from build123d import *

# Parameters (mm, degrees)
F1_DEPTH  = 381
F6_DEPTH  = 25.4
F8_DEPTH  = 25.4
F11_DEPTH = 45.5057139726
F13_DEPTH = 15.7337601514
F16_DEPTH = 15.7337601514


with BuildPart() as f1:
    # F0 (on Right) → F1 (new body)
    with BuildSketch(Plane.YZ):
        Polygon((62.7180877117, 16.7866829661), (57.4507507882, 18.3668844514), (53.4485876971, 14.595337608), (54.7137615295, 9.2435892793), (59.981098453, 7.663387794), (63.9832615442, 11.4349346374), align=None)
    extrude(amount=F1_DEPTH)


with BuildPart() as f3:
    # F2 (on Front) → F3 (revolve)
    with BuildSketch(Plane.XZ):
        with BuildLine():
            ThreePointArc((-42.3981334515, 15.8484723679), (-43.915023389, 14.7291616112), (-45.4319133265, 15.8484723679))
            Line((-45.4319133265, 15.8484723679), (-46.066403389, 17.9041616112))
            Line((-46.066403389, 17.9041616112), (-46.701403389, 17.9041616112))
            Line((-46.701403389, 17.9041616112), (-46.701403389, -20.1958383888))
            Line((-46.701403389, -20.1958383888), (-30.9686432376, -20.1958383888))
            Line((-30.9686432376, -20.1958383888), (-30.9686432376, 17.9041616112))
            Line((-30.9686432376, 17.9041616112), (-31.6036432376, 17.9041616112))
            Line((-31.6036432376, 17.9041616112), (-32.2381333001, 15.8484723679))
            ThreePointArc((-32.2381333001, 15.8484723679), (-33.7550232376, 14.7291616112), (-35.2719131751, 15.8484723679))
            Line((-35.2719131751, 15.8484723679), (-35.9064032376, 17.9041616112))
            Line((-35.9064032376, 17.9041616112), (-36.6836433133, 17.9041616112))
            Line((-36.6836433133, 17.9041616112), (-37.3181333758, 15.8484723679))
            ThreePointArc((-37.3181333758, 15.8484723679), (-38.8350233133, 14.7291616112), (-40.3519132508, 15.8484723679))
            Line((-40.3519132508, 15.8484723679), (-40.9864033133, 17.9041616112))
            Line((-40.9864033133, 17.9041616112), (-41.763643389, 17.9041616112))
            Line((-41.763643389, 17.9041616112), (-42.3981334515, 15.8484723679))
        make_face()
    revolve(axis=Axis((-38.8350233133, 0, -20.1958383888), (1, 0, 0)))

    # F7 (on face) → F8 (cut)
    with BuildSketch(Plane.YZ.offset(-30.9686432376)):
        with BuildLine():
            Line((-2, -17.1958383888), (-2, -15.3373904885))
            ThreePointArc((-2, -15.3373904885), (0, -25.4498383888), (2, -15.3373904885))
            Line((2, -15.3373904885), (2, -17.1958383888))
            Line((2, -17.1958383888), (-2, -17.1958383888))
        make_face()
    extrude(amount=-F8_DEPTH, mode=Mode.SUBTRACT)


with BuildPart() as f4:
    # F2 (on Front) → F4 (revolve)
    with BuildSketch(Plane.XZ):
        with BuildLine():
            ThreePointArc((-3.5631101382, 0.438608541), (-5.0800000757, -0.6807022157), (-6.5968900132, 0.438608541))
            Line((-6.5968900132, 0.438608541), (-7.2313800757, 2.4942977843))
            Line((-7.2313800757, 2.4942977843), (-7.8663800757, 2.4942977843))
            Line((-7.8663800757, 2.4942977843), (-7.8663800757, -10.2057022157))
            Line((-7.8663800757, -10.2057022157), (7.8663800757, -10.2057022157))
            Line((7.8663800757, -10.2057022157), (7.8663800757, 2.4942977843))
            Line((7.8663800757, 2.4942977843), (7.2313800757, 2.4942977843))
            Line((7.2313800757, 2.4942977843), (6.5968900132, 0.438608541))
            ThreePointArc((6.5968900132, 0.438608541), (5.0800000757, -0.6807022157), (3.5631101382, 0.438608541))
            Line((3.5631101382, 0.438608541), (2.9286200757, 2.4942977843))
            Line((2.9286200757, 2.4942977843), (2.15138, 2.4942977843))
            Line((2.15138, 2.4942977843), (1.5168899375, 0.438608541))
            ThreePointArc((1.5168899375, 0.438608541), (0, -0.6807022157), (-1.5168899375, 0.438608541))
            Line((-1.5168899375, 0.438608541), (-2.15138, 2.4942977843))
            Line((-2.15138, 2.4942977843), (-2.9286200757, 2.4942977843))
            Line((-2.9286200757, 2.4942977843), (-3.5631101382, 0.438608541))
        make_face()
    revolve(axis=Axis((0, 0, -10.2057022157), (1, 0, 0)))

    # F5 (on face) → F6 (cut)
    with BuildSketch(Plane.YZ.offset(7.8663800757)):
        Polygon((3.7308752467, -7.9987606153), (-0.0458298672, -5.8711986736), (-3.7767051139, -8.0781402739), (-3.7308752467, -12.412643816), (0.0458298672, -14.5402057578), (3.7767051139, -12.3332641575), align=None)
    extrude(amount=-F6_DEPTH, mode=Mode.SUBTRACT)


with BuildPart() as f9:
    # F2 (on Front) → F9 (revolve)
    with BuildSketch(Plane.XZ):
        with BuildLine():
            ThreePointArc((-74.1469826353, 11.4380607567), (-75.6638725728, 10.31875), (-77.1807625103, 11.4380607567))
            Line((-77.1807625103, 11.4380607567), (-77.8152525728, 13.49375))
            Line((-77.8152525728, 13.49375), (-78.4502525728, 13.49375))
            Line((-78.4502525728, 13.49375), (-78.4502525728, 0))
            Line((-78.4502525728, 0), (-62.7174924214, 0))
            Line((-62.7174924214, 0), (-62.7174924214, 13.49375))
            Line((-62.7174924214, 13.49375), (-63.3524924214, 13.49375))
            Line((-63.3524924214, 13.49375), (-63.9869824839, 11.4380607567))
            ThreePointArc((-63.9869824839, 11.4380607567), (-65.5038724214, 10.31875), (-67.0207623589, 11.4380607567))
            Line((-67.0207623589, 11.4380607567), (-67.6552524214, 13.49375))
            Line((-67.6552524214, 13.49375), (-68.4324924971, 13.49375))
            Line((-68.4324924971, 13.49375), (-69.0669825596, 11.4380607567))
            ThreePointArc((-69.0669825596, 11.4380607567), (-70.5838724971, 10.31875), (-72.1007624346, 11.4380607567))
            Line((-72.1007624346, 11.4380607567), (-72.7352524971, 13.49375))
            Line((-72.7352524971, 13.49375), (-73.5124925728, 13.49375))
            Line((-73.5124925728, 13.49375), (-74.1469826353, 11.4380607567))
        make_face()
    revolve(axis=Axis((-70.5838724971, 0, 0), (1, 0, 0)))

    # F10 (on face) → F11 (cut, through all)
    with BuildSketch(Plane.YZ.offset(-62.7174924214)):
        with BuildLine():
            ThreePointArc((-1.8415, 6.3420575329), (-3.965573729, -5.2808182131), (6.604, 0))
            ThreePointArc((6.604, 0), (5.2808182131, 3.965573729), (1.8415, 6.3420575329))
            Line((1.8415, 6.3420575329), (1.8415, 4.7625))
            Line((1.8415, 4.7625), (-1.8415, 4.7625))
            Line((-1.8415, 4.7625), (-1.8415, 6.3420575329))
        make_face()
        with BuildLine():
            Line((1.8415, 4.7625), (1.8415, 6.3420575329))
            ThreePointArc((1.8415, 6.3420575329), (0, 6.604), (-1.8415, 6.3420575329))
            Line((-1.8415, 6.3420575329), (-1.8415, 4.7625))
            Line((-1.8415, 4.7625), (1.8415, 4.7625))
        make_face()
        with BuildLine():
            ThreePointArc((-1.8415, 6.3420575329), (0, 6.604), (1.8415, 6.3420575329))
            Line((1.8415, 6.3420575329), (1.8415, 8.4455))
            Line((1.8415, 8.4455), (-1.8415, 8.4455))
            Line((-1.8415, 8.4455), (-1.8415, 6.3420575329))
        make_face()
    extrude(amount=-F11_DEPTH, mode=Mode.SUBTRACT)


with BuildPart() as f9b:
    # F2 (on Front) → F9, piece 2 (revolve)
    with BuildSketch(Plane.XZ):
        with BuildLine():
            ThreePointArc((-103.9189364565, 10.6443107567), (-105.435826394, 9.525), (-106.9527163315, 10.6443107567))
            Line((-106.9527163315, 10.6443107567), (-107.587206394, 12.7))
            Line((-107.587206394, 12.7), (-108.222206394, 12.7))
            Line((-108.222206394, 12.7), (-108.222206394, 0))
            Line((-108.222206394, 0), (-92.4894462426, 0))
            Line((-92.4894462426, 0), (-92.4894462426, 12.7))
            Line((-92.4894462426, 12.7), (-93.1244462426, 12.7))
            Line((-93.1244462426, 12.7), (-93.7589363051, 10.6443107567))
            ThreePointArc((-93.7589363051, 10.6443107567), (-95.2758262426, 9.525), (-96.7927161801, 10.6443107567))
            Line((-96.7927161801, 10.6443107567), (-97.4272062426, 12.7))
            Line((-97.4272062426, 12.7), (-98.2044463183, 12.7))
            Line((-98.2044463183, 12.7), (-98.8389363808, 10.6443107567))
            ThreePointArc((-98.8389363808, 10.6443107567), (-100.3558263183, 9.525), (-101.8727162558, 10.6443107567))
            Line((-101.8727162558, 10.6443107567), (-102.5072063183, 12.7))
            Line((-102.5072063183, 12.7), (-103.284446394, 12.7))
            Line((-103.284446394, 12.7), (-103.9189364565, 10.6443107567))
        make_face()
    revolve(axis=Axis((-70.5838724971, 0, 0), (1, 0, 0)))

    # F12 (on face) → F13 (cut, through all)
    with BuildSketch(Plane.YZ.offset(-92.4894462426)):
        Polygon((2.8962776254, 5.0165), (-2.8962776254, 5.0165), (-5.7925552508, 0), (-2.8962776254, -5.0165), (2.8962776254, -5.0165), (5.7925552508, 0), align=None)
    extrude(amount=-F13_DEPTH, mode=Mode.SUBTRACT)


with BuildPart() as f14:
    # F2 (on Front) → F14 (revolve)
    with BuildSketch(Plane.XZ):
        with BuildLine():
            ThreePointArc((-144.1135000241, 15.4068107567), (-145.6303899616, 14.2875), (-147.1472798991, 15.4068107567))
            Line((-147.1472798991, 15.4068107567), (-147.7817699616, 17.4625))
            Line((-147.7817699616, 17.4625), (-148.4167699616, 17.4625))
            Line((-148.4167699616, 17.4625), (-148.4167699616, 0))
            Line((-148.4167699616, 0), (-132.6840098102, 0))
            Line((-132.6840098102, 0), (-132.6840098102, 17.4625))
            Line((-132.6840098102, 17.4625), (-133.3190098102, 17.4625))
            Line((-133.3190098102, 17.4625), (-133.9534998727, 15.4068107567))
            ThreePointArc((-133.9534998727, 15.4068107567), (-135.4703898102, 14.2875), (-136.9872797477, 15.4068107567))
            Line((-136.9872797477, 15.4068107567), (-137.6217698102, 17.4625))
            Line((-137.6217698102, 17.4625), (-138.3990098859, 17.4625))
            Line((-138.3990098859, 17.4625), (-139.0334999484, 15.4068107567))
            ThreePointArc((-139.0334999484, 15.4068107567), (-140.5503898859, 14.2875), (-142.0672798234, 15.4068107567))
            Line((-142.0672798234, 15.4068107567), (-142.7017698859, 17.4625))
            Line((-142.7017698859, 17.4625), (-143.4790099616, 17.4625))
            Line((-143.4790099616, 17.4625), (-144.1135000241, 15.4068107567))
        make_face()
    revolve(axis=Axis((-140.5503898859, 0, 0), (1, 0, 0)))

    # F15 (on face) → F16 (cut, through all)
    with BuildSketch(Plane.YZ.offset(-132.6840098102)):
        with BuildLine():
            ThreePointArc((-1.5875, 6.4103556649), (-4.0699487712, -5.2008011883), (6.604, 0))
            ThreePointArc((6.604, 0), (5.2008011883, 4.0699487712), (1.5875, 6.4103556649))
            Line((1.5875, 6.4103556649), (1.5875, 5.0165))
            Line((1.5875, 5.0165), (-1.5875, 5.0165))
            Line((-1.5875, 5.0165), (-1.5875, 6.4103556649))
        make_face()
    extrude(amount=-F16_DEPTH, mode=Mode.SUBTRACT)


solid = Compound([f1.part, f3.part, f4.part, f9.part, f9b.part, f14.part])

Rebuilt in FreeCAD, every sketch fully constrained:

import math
import FreeCAD as App
import Part
import Sketcher
from FreeCAD import Vector
Q = App.Units.Quantity

doc = App.newDocument("Part")
params = doc.addObject("Spreadsheet::Sheet", "Params")
for row, (alias, value) in enumerate([
    ("pad1_length", "15 in"),
    ("sketch2_height", "1.5 in"),
    ("sketch2_radius", "0.0625 in"),
    ("sketch2_width", "0.025 in"),
    ("revolution_angle", "360 deg"),
    ("pocket1_length", "1 in"),
    ("sketch4_height", "0.5 in"),
    ("sketch4_radius", "0.0625 in"),
    ("sketch4_width", "0.025 in"),
    ("revolution2_angle", "360 deg"),
    ("pocket2_length", "1 in"),
    ("sketch6_radius", "0.0625 in"),
    ("sketch6_width", "0.025 in"),
    ("sketch6_height", "0.53125 in"),
    ("revolution3_angle", "360 deg"),
    ("sketch7_radius", "0.26 in"),
    ("sketch7_width", "0.145 in"),
    ("sketch8_height", "0.5 in"),
    ("sketch8_radius", "0.0625 in"),
    ("sketch8_width", "0.025 in"),
    ("revolution4_angle", "360 deg"),
    ("sketch10_radius", "0.0625 in"),
    ("sketch10_width", "0.025 in"),
    ("sketch10_height", "0.6875 in"),
    ("revolution5_angle", "360 deg"),
    ("sketch11_radius", "0.26 in"),
    ("sketch11_width", "0.125 in"),
], start=1):
    params.set(f"A{row}", alias)
    params.set(f"B{row}", "=" + value)
    params.setAlias(f"B{row}", alias)

body = doc.addObject("PartDesign::Body", "Body")

sketch1 = doc.addObject("Sketcher::SketchObject", "Sketch")
body.addObject(sketch1)
sketch1.AttachmentSupport = (doc.YZ_Plane, [""])
sketch1.MapMode = "FlatFace"
sketch1.addGeometry(Part.LineSegment(Vector(62.718088, 16.786683, 0), Vector(57.450751, 18.366884, 0)), False)
sketch1.addGeometry(Part.LineSegment(Vector(57.450751, 18.366884, 0), Vector(53.448588, 14.595338, 0)), False)
sketch1.addGeometry(Part.LineSegment(Vector(53.448588, 14.595338, 0), Vector(54.713762, 9.243589, 0)), False)
sketch1.addGeometry(Part.LineSegment(Vector(54.713762, 9.243589, 0), Vector(59.981098, 7.663388, 0)), False)
sketch1.addGeometry(Part.LineSegment(Vector(59.981098, 7.663388, 0), Vector(63.983262, 11.434935, 0)), False)
sketch1.addGeometry(Part.LineSegment(Vector(63.983262, 11.434935, 0), Vector(62.718088, 16.786683, 0)), False)
sketch1.addConstraint(Sketcher.Constraint("Coincident", 0, 2, 1, 1))
sketch1.addConstraint(Sketcher.Constraint("Coincident", 1, 2, 2, 1))
sketch1.addConstraint(Sketcher.Constraint("Coincident", 2, 2, 3, 1))
sketch1.addConstraint(Sketcher.Constraint("Coincident", 3, 2, 4, 1))
sketch1.addConstraint(Sketcher.Constraint("Coincident", 4, 2, 5, 1))
sketch1.addConstraint(Sketcher.Constraint("Coincident", 5, 2, 0, 1))
sketch1.addConstraint(Sketcher.Constraint("Parallel", 0, 3))
sketch1.addConstraint(Sketcher.Constraint("Parallel", 1, 4))
sketch1.addConstraint(Sketcher.Constraint("Parallel", 2, 5))
sketch1.addConstraint(Sketcher.Constraint("Equal", 0, 1))
sketch1.addConstraint(Sketcher.Constraint("Equal", 1, 2))
sketch1.addConstraint(Sketcher.Constraint("Equal", 2, 3))
sketch1.addConstraint(Sketcher.Constraint("DistanceX", -1, 1, 3, 2, Q("59.981098 mm")))
sketch1.addConstraint(Sketcher.Constraint("DistanceY", 3, 2, 2, 2, Q("1.580201 mm")))
sketch1.addConstraint(Sketcher.Constraint("DistanceX", 2, 2, 4, 2, Q("9.2695 mm")))
sketch1.addConstraint(Sketcher.Constraint("Distance", 0, Q("5.499261 mm")))
sketch1.addConstraint(Sketcher.Constraint("DistanceX", -1, 1, 0, 2, Q("57.450751 mm")))
sketch1.addConstraint(Sketcher.Constraint("DistanceY", -1, 1, 2, 2, Q("9.243589 mm")))
pad1 = doc.addObject("PartDesign::Pad", "Pad")
body.addObject(pad1)
pad1.Profile = sketch1
pad1.setExpression("Length", "Params.pad1_length")
body2 = doc.addObject("PartDesign::Body", "Body001")

sketch2 = doc.addObject("Sketcher::SketchObject", "Sketch001")
body2.addObject(sketch2)
sketch2.AttachmentSupport = (doc.getObject("XZ_Plane001"), [""])
sketch2.MapMode = "FlatFace"
sketch2.addGeometry(Part.ArcOfCircle(Part.Circle(Vector(-43.915023, 16.316662, 0), Vector(0, 0, 1), 1.5875), math.radians(-162.847118), math.radians(-17.152882)), False)
sketch2.addGeometry(Part.LineSegment(Vector(-45.431913, 15.848472, 0), Vector(-46.066403, 17.904162, 0)), False)
sketch2.addGeometry(Part.LineSegment(Vector(-46.066403, 17.904162, 0), Vector(-46.701403, 17.904162, 0)), False)
sketch2.addGeometry(Part.LineSegment(Vector(-46.701403, 17.904162, 0), Vector(-46.701403, -20.195838, 0)), False)
sketch2.addGeometry(Part.LineSegment(Vector(-46.701403, -20.195838, 0), Vector(-30.968643, -20.195838, 0)), False)
sketch2.addGeometry(Part.LineSegment(Vector(-30.968643, -20.195838, 0), Vector(-30.968643, 17.904162, 0)), False)
sketch2.addGeometry(Part.LineSegment(Vector(-30.968643, 17.904162, 0), Vector(-31.603643, 17.904162, 0)), False)
sketch2.addGeometry(Part.LineSegment(Vector(-31.603643, 17.904162, 0), Vector(-32.238133, 15.848472, 0)), False)
sketch2.addGeometry(Part.ArcOfCircle(Part.Circle(Vector(-33.755023, 16.316662, 0), Vector(0, 0, 1), 1.5875), math.radians(-162.847118), math.radians(-17.152882)), False)
sketch2.addGeometry(Part.LineSegment(Vector(-35.271913, 15.848472, 0), Vector(-35.906403, 17.904162, 0)), False)
sketch2.addGeometry(Part.LineSegment(Vector(-35.906403, 17.904162, 0), Vector(-36.683643, 17.904162, 0)), False)
sketch2.addGeometry(Part.LineSegment(Vector(-36.683643, 17.904162, 0), Vector(-37.318133, 15.848472, 0)), False)
sketch2.addGeometry(Part.ArcOfCircle(Part.Circle(Vector(-38.835023, 16.316662, 0), Vector(0, 0, 1), 1.5875), math.radians(-162.847118), math.radians(-17.152882)), False)
sketch2.addGeometry(Part.LineSegment(Vector(-40.351913, 15.848472, 0), Vector(-40.986403, 17.904162, 0)), False)
sketch2.addGeometry(Part.LineSegment(Vector(-40.986403, 17.904162, 0), Vector(-41.763643, 17.904162, 0)), False)
sketch2.addGeometry(Part.LineSegment(Vector(-41.763643, 17.904162, 0), Vector(-42.398133, 15.848472, 0)), False)
sketch2.addGeometry(Part.LineSegment(Vector(-46.701403, -20.195838, 0), Vector(-30.968643, -20.195838, 0)), True)
sketch2.addConstraint(Sketcher.Constraint("Tangent", 0, 1, 1, 1))
sketch2.addConstraint(Sketcher.Constraint("Coincident", 1, 2, 2, 1))
sketch2.addConstraint(Sketcher.Constraint("Coincident", 2, 2, 3, 1))
sketch2.addConstraint(Sketcher.Constraint("Coincident", 3, 2, 4, 1))
sketch2.addConstraint(Sketcher.Constraint("Coincident", 4, 2, 5, 1))
sketch2.addConstraint(Sketcher.Constraint("Coincident", 5, 2, 6, 1))
sketch2.addConstraint(Sketcher.Constraint("Coincident", 6, 2, 7, 1))
sketch2.addConstraint(Sketcher.Constraint("Tangent", 7, 2, 8, 2))
sketch2.addConstraint(Sketcher.Constraint("Tangent", 8, 1, 9, 1))
sketch2.addConstraint(Sketcher.Constraint("Coincident", 9, 2, 10, 1))
sketch2.addConstraint(Sketcher.Constraint("Coincident", 10, 2, 11, 1))
sketch2.addConstraint(Sketcher.Constraint("Tangent", 11, 2, 12, 2))
sketch2.addConstraint(Sketcher.Constraint("Tangent", 12, 1, 13, 1))
sketch2.addConstraint(Sketcher.Constraint("Coincident", 13, 2, 14, 1))
sketch2.addConstraint(Sketcher.Constraint("Coincident", 14, 2, 15, 1))
sketch2.addConstraint(Sketcher.Constraint("Tangent", 15, 2, 0, 2))
sketch2.addConstraint(Sketcher.Constraint("Horizontal", 2))
sketch2.addConstraint(Sketcher.Constraint("Vertical", 3))
sketch2.addConstraint(Sketcher.Constraint("Horizontal", 4))
sketch2.addConstraint(Sketcher.Constraint("Vertical", 5))
sketch2.addConstraint(Sketcher.Constraint("Horizontal", 6))
sketch2.addConstraint(Sketcher.Constraint("Horizontal", 10))
sketch2.addConstraint(Sketcher.Constraint("Horizontal", 14))
sketch2.addConstraint(Sketcher.Constraint("Horizontal", 16))
sketch2.addConstraint(Sketcher.Constraint("Coincident", 16, 1, 3, 2))
sketch2.addConstraint(Sketcher.Constraint("Equal", 0, 8))
sketch2.addConstraint(Sketcher.Constraint("Equal", 8, 12))
sketch2.addConstraint(Sketcher.Constraint("Parallel", 1, 9))
sketch2.addConstraint(Sketcher.Constraint("Parallel", 7, 11))
sketch2.addConstraint(Sketcher.Constraint("Parallel", 9, 13))
sketch2.addConstraint(Sketcher.Constraint("Parallel", 11, 15))
sketch2.addConstraint(Sketcher.Constraint("Horizontal", 0, 3, 8, 3))
sketch2.addConstraint(Sketcher.Constraint("Horizontal", 8, 3, 12, 3))
sketch2.addConstraint(Sketcher.Constraint("Horizontal", 2, 2, 5, 2))
sketch2.addConstraint(Sketcher.Constraint("Horizontal", 0, 1, 7, 2))
sketch2.addConstraint(Sketcher.Constraint("Horizontal", 6, 2, 9, 2))
sketch2.addConstraint(Sketcher.Constraint("Horizontal", 10, 2, 13, 2))
sketch2.addConstraint(Sketcher.Constraint("Vertical", 5, 2, 16, 2))
sketch2.addConstraint(Sketcher.Constraint("Equal", 2, 6))
sketch2.addConstraint(Sketcher.Constraint("Equal", 10, 14))
sketch2.addConstraint(Sketcher.Constraint("DistanceY", 3, 2, 3, 1, Q("1.5 in")))
sketch2.addConstraint(Sketcher.Constraint("Radius", 0, Q("0.0625 in")))
sketch2.addConstraint(Sketcher.Constraint("DistanceX", 0, 3, 8, 3, Q("0.4 in")))
sketch2.addConstraint(Sketcher.Constraint("DistanceX", 2, 2, 2, 1, Q("0.025 in")))
sketch2.addConstraint(Sketcher.Constraint("DistanceX", 4, 1, 4, 2, Q("0.6194 in")))
sketch2.addConstraint(Sketcher.Constraint("DistanceY", 0, 3, 1, 2, Q("0.0625 in")))
sketch2.addConstraint(Sketcher.Constraint("DistanceY", -1, 1, 0, 3, Q("16.316662 mm")))
sketch2.addConstraint(Sketcher.Constraint("DistanceX", 0, 3, -1, 1, Q("43.915023 mm")))
sketch2.setExpression("Constraints[40]", "Params.sketch2_height")
sketch2.setExpression("Constraints[41]", "Params.sketch2_radius")
sketch2.setExpression("Constraints[43]", "Params.sketch2_width")
revolution = doc.addObject("PartDesign::Revolution", "Revolution")
body2.addObject(revolution)
revolution.Profile = sketch2
revolution.ReferenceAxis = (sketch2, ["Axis0"])
revolution.setExpression("Angle", "Params.revolution_angle")

sketch3 = doc.addObject("Sketcher::SketchObject", "Sketch002")
body2.addObject(sketch3)
sketch3.AttachmentSupport = (doc.getObject("YZ_Plane001"), [""])
sketch3.MapMode = "FlatFace"
sketch3.AttachmentOffset = App.Placement(Vector(0, 0, -30.968643), App.Rotation())
sketch3.addGeometry(Part.LineSegment(Vector(-2, -17.195838, 0), Vector(-2, -15.33739, 0)), False)
sketch3.addGeometry(Part.ArcOfCircle(Part.Circle(Vector(0, -20.195838, 0), Vector(0, 0, 1), 5.254), math.radians(112.374716), math.radians(427.625284)), False)
sketch3.addGeometry(Part.LineSegment(Vector(2, -15.33739, 0), Vector(2, -17.195838, 0)), False)
sketch3.addGeometry(Part.LineSegment(Vector(2, -17.195838, 0), Vector(-2, -17.195838, 0)), False)
sketch3.addConstraint(Sketcher.Constraint("Coincident", 0, 2, 1, 1))
sketch3.addConstraint(Sketcher.Constraint("Coincident", 1, 2, 2, 1))
sketch3.addConstraint(Sketcher.Constraint("Coincident", 2, 2, 3, 1))
sketch3.addConstraint(Sketcher.Constraint("Coincident", 3, 2, 0, 1))
sketch3.addConstraint(Sketcher.Constraint("Vertical", 0))
sketch3.addConstraint(Sketcher.Constraint("Vertical", 2))
sketch3.addConstraint(Sketcher.Constraint("Horizontal", 3))
sketch3.addConstraint(Sketcher.Constraint("Symmetric", 0, 2, 1, 2, -2))
sketch3.addConstraint(Sketcher.Constraint("Radius", 1, Q("5.254 mm")))
sketch3.addConstraint(Sketcher.Constraint("DistanceX", 3, 2, 3, 1, Q("4 mm")))
sketch3.addConstraint(Sketcher.Constraint("DistanceY", 1, 3, 2, 2, Q("3 mm")))
sketch3.addConstraint(Sketcher.Constraint("DistanceY", 1, 3, -1, 1, Q("20.195838 mm")))
pocket1 = doc.addObject("PartDesign::Pocket", "Pocket")
body2.addObject(pocket1)
pocket1.Profile = sketch3
pocket1.setExpression("Length", "Params.pocket1_length")
body3 = doc.addObject("PartDesign::Body", "Body002")

sketch4 = doc.addObject("Sketcher::SketchObject", "Sketch003")
body3.addObject(sketch4)
sketch4.AttachmentSupport = (doc.getObject("XZ_Plane002"), [""])
sketch4.MapMode = "FlatFace"
sketch4.addGeometry(Part.ArcOfCircle(Part.Circle(Vector(-5.08, 0.906798, 0), Vector(0, 0, 1), 1.5875), math.radians(-162.847118), math.radians(-17.152882)), False)
sketch4.addGeometry(Part.LineSegment(Vector(-6.59689, 0.438609, 0), Vector(-7.23138, 2.494298, 0)), False)
sketch4.addGeometry(Part.LineSegment(Vector(-7.23138, 2.494298, 0), Vector(-7.86638, 2.494298, 0)), False)
sketch4.addGeometry(Part.LineSegment(Vector(-7.86638, 2.494298, 0), Vector(-7.86638, -10.205702, 0)), False)
sketch4.addGeometry(Part.LineSegment(Vector(-7.86638, -10.205702, 0), Vector(7.86638, -10.205702, 0)), False)
sketch4.addGeometry(Part.LineSegment(Vector(7.86638, -10.205702, 0), Vector(7.86638, 2.494298, 0)), False)
sketch4.addGeometry(Part.LineSegment(Vector(7.86638, 2.494298, 0), Vector(7.23138, 2.494298, 0)), False)
sketch4.addGeometry(Part.LineSegment(Vector(7.23138, 2.494298, 0), Vector(6.59689, 0.438609, 0)), False)
sketch4.addGeometry(Part.ArcOfCircle(Part.Circle(Vector(5.08, 0.906798, 0), Vector(0, 0, 1), 1.5875), math.radians(-162.847118), math.radians(-17.152882)), False)
sketch4.addGeometry(Part.LineSegment(Vector(3.56311, 0.438609, 0), Vector(2.92862, 2.494298, 0)), False)
sketch4.addGeometry(Part.LineSegment(Vector(2.92862, 2.494298, 0), Vector(2.15138, 2.494298, 0)), False)
sketch4.addGeometry(Part.LineSegment(Vector(2.15138, 2.494298, 0), Vector(1.51689, 0.438609, 0)), False)
sketch4.addGeometry(Part.ArcOfCircle(Part.Circle(Vector(0, 0.906798, 0), Vector(0, 0, 1), 1.5875), math.radians(-162.847118), math.radians(-17.152882)), False)
sketch4.addGeometry(Part.LineSegment(Vector(-1.51689, 0.438609, 0), Vector(-2.15138, 2.494298, 0)), False)
sketch4.addGeometry(Part.LineSegment(Vector(-2.15138, 2.494298, 0), Vector(-2.92862, 2.494298, 0)), False)
sketch4.addGeometry(Part.LineSegment(Vector(-2.92862, 2.494298, 0), Vector(-3.56311, 0.438609, 0)), False)
sketch4.addGeometry(Part.LineSegment(Vector(-7.86638, -10.205702, 0), Vector(7.86638, -10.205702, 0)), True)
sketch4.addConstraint(Sketcher.Constraint("Tangent", 0, 1, 1, 1))
sketch4.addConstraint(Sketcher.Constraint("Coincident", 1, 2, 2, 1))
sketch4.addConstraint(Sketcher.Constraint("Coincident", 2, 2, 3, 1))
sketch4.addConstraint(Sketcher.Constraint("Coincident", 3, 2, 4, 1))
sketch4.addConstraint(Sketcher.Constraint("Coincident", 4, 2, 5, 1))
sketch4.addConstraint(Sketcher.Constraint("Coincident", 5, 2, 6, 1))
sketch4.addConstraint(Sketcher.Constraint("Coincident", 6, 2, 7, 1))
sketch4.addConstraint(Sketcher.Constraint("Tangent", 7, 2, 8, 2))
sketch4.addConstraint(Sketcher.Constraint("Tangent", 8, 1, 9, 1))
sketch4.addConstraint(Sketcher.Constraint("Coincident", 9, 2, 10, 1))
sketch4.addConstraint(Sketcher.Constraint("Coincident", 10, 2, 11, 1))
sketch4.addConstraint(Sketcher.Constraint("Tangent", 11, 2, 12, 2))
sketch4.addConstraint(Sketcher.Constraint("Tangent", 12, 1, 13, 1))
sketch4.addConstraint(Sketcher.Constraint("Coincident", 13, 2, 14, 1))
sketch4.addConstraint(Sketcher.Constraint("Coincident", 14, 2, 15, 1))
sketch4.addConstraint(Sketcher.Constraint("Tangent", 15, 2, 0, 2))
sketch4.addConstraint(Sketcher.Constraint("Horizontal", 2))
sketch4.addConstraint(Sketcher.Constraint("Vertical", 3))
sketch4.addConstraint(Sketcher.Constraint("Horizontal", 4))
sketch4.addConstraint(Sketcher.Constraint("Vertical", 5))
sketch4.addConstraint(Sketcher.Constraint("Horizontal", 6))
sketch4.addConstraint(Sketcher.Constraint("Horizontal", 10))
sketch4.addConstraint(Sketcher.Constraint("Horizontal", 14))
sketch4.addConstraint(Sketcher.Constraint("Horizontal", 16))
sketch4.addConstraint(Sketcher.Constraint("Coincident", 16, 1, 3, 2))
sketch4.addConstraint(Sketcher.Constraint("Equal", 0, 8))
sketch4.addConstraint(Sketcher.Constraint("Equal", 8, 12))
sketch4.addConstraint(Sketcher.Constraint("Symmetric", 0, 3, 8, 3, -2))
sketch4.addConstraint(Sketcher.Constraint("Symmetric", 2, 2, 5, 2, -2))
sketch4.addConstraint(Sketcher.Constraint("Symmetric", 11, 2, 12, 1, -2))
sketch4.addConstraint(Sketcher.Constraint("Symmetric", 9, 2, 14, 2, -2))
sketch4.addConstraint(Sketcher.Constraint("Parallel", 1, 9))
sketch4.addConstraint(Sketcher.Constraint("Parallel", 7, 11))
sketch4.addConstraint(Sketcher.Constraint("Parallel", 9, 13))
sketch4.addConstraint(Sketcher.Constraint("Horizontal", 8, 3, 12, 3))
sketch4.addConstraint(Sketcher.Constraint("Horizontal", 6, 2, 9, 2))
sketch4.addConstraint(Sketcher.Constraint("Vertical", 5, 2, 16, 2))
sketch4.addConstraint(Sketcher.Constraint("DistanceY", 3, 2, 3, 1, Q("0.5 in")))
sketch4.addConstraint(Sketcher.Constraint("Radius", 0, Q("0.0625 in")))
sketch4.addConstraint(Sketcher.Constraint("DistanceX", 0, 3, -1, 1, Q("0.2 in")))
sketch4.addConstraint(Sketcher.Constraint("DistanceX", 2, 2, 2, 1, Q("0.025 in")))
sketch4.addConstraint(Sketcher.Constraint("DistanceX", 4, 1, 4, 2, Q("0.6194 in")))
sketch4.addConstraint(Sketcher.Constraint("DistanceY", 0, 3, 1, 2, Q("0.0625 in")))
sketch4.addConstraint(Sketcher.Constraint("DistanceY", -1, 1, 0, 1, Q("0.438609 mm")))
sketch4.setExpression("Constraints[37]", "Params.sketch4_height")
sketch4.setExpression("Constraints[38]", "Params.sketch4_radius")
sketch4.setExpression("Constraints[40]", "Params.sketch4_width")
revolution2 = doc.addObject("PartDesign::Revolution", "Revolution001")
body3.addObject(revolution2)
revolution2.Profile = sketch4
revolution2.ReferenceAxis = (sketch4, ["Axis0"])
revolution2.setExpression("Angle", "Params.revolution2_angle")

sketch5 = doc.addObject("Sketcher::SketchObject", "Sketch004")
body3.addObject(sketch5)
sketch5.AttachmentSupport = (doc.getObject("YZ_Plane002"), [""])
sketch5.MapMode = "FlatFace"
sketch5.AttachmentOffset = App.Placement(Vector(0, 0, 0.3097 * 25.4), App.Rotation())
sketch5.addGeometry(Part.LineSegment(Vector(3.730875, -7.998761, 0), Vector(-0.04583, -5.871199, 0)), False)
sketch5.addGeometry(Part.LineSegment(Vector(-0.04583, -5.871199, 0), Vector(-3.776705, -8.07814, 0)), False)
sketch5.addGeometry(Part.LineSegment(Vector(-3.776705, -8.07814, 0), Vector(-3.730875, -12.412644, 0)), False)
sketch5.addGeometry(Part.LineSegment(Vector(-3.730875, -12.412644, 0), Vector(0.04583, -14.540206, 0)), False)
sketch5.addGeometry(Part.LineSegment(Vector(0.04583, -14.540206, 0), Vector(3.776705, -12.333264, 0)), False)
sketch5.addGeometry(Part.LineSegment(Vector(3.776705, -12.333264, 0), Vector(3.730875, -7.998761, 0)), False)
sketch5.addConstraint(Sketcher.Constraint("Coincident", 0, 2, 1, 1))
sketch5.addConstraint(Sketcher.Constraint("Coincident", 1, 2, 2, 1))
sketch5.addConstraint(Sketcher.Constraint("Coincident", 2, 2, 3, 1))
sketch5.addConstraint(Sketcher.Constraint("Coincident", 3, 2, 4, 1))
sketch5.addConstraint(Sketcher.Constraint("Coincident", 4, 2, 5, 1))
sketch5.addConstraint(Sketcher.Constraint("Coincident", 5, 2, 0, 1))
sketch5.addConstraint(Sketcher.Constraint("DistanceY", 0, 2, -1, 1, Q("5.871199 mm")))
sketch5.addConstraint(Sketcher.Constraint("DistanceX", 0, 2, -1, 1, Q("0.04583 mm")))
sketch5.addConstraint(Sketcher.Constraint("DistanceY", 1, 2, -1, 1, Q("8.07814 mm")))
sketch5.addConstraint(Sketcher.Constraint("DistanceX", -1, 1, 3, 2, Q("0.04583 mm")))
sketch5.addConstraint(Sketcher.Constraint("DistanceY", 5, 2, -1, 1, Q("7.998761 mm")))
sketch5.addConstraint(Sketcher.Constraint("DistanceX", 1, 2, 2, 2, Q("0.04583 mm")))
sketch5.addConstraint(Sketcher.Constraint("DistanceY", 3, 2, 2, 2, Q("2.127562 mm")))
sketch5.addConstraint(Sketcher.Constraint("DistanceY", 3, 2, 4, 2, Q("2.206942 mm")))
sketch5.addConstraint(Sketcher.Constraint("DistanceX", 2, 2, 4, 2, Q("7.50758 mm")))
sketch5.addConstraint(Sketcher.Constraint("DistanceX", 5, 2, 4, 2, Q("0.04583 mm")))
sketch5.addConstraint(Sketcher.Constraint("Distance", 0, Q("4.334746 mm")))
sketch5.addConstraint(Sketcher.Constraint("Distance", 2, Q("4.334746 mm")))
pocket2 = doc.addObject("PartDesign::Pocket", "Pocket001")
body3.addObject(pocket2)
pocket2.Profile = sketch5
pocket2.setExpression("Length", "Params.pocket2_length")
body4 = doc.addObject("PartDesign::Body", "Body003")

sketch6 = doc.addObject("Sketcher::SketchObject", "Sketch005")
body4.addObject(sketch6)
sketch6.AttachmentSupport = (doc.getObject("XZ_Plane003"), [""])
sketch6.MapMode = "FlatFace"
sketch6.addGeometry(Part.ArcOfCircle(Part.Circle(Vector(-75.663873, 11.90625, 0), Vector(0, 0, 1), 1.5875), math.radians(-162.847118), math.radians(-17.152882)), False)
sketch6.addGeometry(Part.LineSegment(Vector(-77.180763, 11.438061, 0), Vector(-77.815253, 13.49375, 0)), False)
sketch6.addGeometry(Part.LineSegment(Vector(-77.815253, 13.49375, 0), Vector(-78.450253, 13.49375, 0)), False)
sketch6.addGeometry(Part.LineSegment(Vector(-78.450253, 13.49375, 0), Vector(-78.450253, 0, 0)), False)
sketch6.addGeometry(Part.LineSegment(Vector(-78.450253, 0, 0), Vector(-62.717492, 0, 0)), False)
sketch6.addGeometry(Part.LineSegment(Vector(-62.717492, 0, 0), Vector(-62.717492, 13.49375, 0)), False)
sketch6.addGeometry(Part.LineSegment(Vector(-62.717492, 13.49375, 0), Vector(-63.352492, 13.49375, 0)), False)
sketch6.addGeometry(Part.LineSegment(Vector(-63.352492, 13.49375, 0), Vector(-63.986982, 11.438061, 0)), False)
sketch6.addGeometry(Part.ArcOfCircle(Part.Circle(Vector(-65.503872, 11.90625, 0), Vector(0, 0, 1), 1.5875), math.radians(-162.847118), math.radians(-17.152882)), False)
sketch6.addGeometry(Part.LineSegment(Vector(-67.020762, 11.438061, 0), Vector(-67.655252, 13.49375, 0)), False)
sketch6.addGeometry(Part.LineSegment(Vector(-67.655252, 13.49375, 0), Vector(-68.432492, 13.49375, 0)), False)
sketch6.addGeometry(Part.LineSegment(Vector(-68.432492, 13.49375, 0), Vector(-69.066983, 11.438061, 0)), False)
sketch6.addGeometry(Part.ArcOfCircle(Part.Circle(Vector(-70.583872, 11.90625, 0), Vector(0, 0, 1), 1.5875), math.radians(-162.847118), math.radians(-17.152882)), False)
sketch6.addGeometry(Part.LineSegment(Vector(-72.100762, 11.438061, 0), Vector(-72.735252, 13.49375, 0)), False)
sketch6.addGeometry(Part.LineSegment(Vector(-72.735252, 13.49375, 0), Vector(-73.512493, 13.49375, 0)), False)
sketch6.addGeometry(Part.LineSegment(Vector(-73.512493, 13.49375, 0), Vector(-74.146983, 11.438061, 0)), False)
sketch6.addConstraint(Sketcher.Constraint("Tangent", 0, 1, 1, 1))
sketch6.addConstraint(Sketcher.Constraint("Coincident", 1, 2, 2, 1))
sketch6.addConstraint(Sketcher.Constraint("Coincident", 2, 2, 3, 1))
sketch6.addConstraint(Sketcher.Constraint("Coincident", 3, 2, 4, 1))
sketch6.addConstraint(Sketcher.Constraint("Coincident", 4, 2, 5, 1))
sketch6.addConstraint(Sketcher.Constraint("Coincident", 5, 2, 6, 1))
sketch6.addConstraint(Sketcher.Constraint("Coincident", 6, 2, 7, 1))
sketch6.addConstraint(Sketcher.Constraint("Tangent", 7, 2, 8, 2))
sketch6.addConstraint(Sketcher.Constraint("Tangent", 8, 1, 9, 1))
sketch6.addConstraint(Sketcher.Constraint("Coincident", 9, 2, 10, 1))
sketch6.addConstraint(Sketcher.Constraint("Coincident", 10, 2, 11, 1))
sketch6.addConstraint(Sketcher.Constraint("Tangent", 11, 2, 12, 2))
sketch6.addConstraint(Sketcher.Constraint("Tangent", 12, 1, 13, 1))
sketch6.addConstraint(Sketcher.Constraint("Coincident", 13, 2, 14, 1))
sketch6.addConstraint(Sketcher.Constraint("Coincident", 14, 2, 15, 1))
sketch6.addConstraint(Sketcher.Constraint("Tangent", 15, 2, 0, 2))
sketch6.addConstraint(Sketcher.Constraint("Horizontal", 2))
sketch6.addConstraint(Sketcher.Constraint("Vertical", 3))
sketch6.addConstraint(Sketcher.Constraint("Horizontal", 4))
sketch6.addConstraint(Sketcher.Constraint("Vertical", 5))
sketch6.addConstraint(Sketcher.Constraint("Horizontal", 6))
sketch6.addConstraint(Sketcher.Constraint("Horizontal", 10))
sketch6.addConstraint(Sketcher.Constraint("Horizontal", 14))
sketch6.addConstraint(Sketcher.Constraint("Equal", 0, 8))
sketch6.addConstraint(Sketcher.Constraint("Equal", 8, 12))
sketch6.addConstraint(Sketcher.Constraint("PointOnObject", 3, 2, -1))
sketch6.addConstraint(Sketcher.Constraint("Parallel", 1, 9))
sketch6.addConstraint(Sketcher.Constraint("Parallel", 7, 11))
sketch6.addConstraint(Sketcher.Constraint("Parallel", 9, 13))
sketch6.addConstraint(Sketcher.Constraint("Parallel", 11, 15))
sketch6.addConstraint(Sketcher.Constraint("Horizontal", 0, 3, 8, 3))
sketch6.addConstraint(Sketcher.Constraint("Horizontal", 8, 3, 12, 3))
sketch6.addConstraint(Sketcher.Constraint("Horizontal", 2, 2, 5, 2))
sketch6.addConstraint(Sketcher.Constraint("Horizontal", 0, 1, 7, 2))
sketch6.addConstraint(Sketcher.Constraint("Horizontal", 6, 2, 9, 2))
sketch6.addConstraint(Sketcher.Constraint("Horizontal", 10, 2, 13, 2))
sketch6.addConstraint(Sketcher.Constraint("Equal", 2, 6))
sketch6.addConstraint(Sketcher.Constraint("Equal", 10, 14))
sketch6.addConstraint(Sketcher.Constraint("Radius", 0, Q("0.0625 in")))
sketch6.addConstraint(Sketcher.Constraint("DistanceX", 0, 3, 8, 3, Q("0.4 in")))
sketch6.addConstraint(Sketcher.Constraint("DistanceX", 2, 2, 2, 1, Q("0.025 in")))
sketch6.addConstraint(Sketcher.Constraint("DistanceY", 3, 2, 3, 1, Q("0.53125 in")))
sketch6.addConstraint(Sketcher.Constraint("DistanceX", 4, 1, 4, 2, Q("0.6194 in")))
sketch6.addConstraint(Sketcher.Constraint("DistanceY", -1, 1, 0, 3, Q("0.46875 in")))
sketch6.addConstraint(Sketcher.Constraint("DistanceX", 0, 3, -1, 1, Q("75.663873 mm")))
sketch6.setExpression("Constraints[38]", "Params.sketch6_radius")
sketch6.setExpression("Constraints[40]", "Params.sketch6_width")
sketch6.setExpression("Constraints[41]", "Params.sketch6_height")
revolution3 = doc.addObject("PartDesign::Revolution", "Revolution002")
body4.addObject(revolution3)
revolution3.Profile = sketch6
revolution3.ReferenceAxis = (sketch6, ["H_Axis"])
revolution3.setExpression("Angle", "Params.revolution3_angle")

sketch7 = doc.addObject("Sketcher::SketchObject", "Sketch006")
body4.addObject(sketch7)
sketch7.AttachmentSupport = (doc.getObject("YZ_Plane003"), [""])
sketch7.MapMode = "FlatFace"
sketch7.AttachmentOffset = App.Placement(Vector(0, 0, -62.717492), App.Rotation())
sketch7.addGeometry(Part.ArcOfCircle(Part.Circle(Vector(0, 0, 0), Vector(0, 0, 1), 6.604), math.radians(106.191352), math.radians(360)), False)
sketch7.addGeometry(Part.ArcOfCircle(Part.Circle(Vector(0, 0, 0), Vector(0, 0, 1), 6.604), math.radians(0), math.radians(73.808648)), False)
sketch7.addGeometry(Part.LineSegment(Vector(1.8415, 6.342058, 0), Vector(1.8415, 8.4455, 0)), False)
sketch7.addGeometry(Part.LineSegment(Vector(1.8415, 8.4455, 0), Vector(-1.8415, 8.4455, 0)), False)
sketch7.addGeometry(Part.LineSegment(Vector(-1.8415, 8.4455, 0), Vector(-1.8415, 6.342058, 0)), False)
sketch7.addConstraint(Sketcher.Constraint("Tangent", 0, 2, 1, 1))
sketch7.addConstraint(Sketcher.Constraint("Coincident", 1, 2, 2, 1))
sketch7.addConstraint(Sketcher.Constraint("Coincident", 2, 2, 3, 1))
sketch7.addConstraint(Sketcher.Constraint("Coincident", 3, 2, 4, 1))
sketch7.addConstraint(Sketcher.Constraint("Coincident", 4, 2, 0, 1))
sketch7.addConstraint(Sketcher.Constraint("Vertical", 2))
sketch7.addConstraint(Sketcher.Constraint("Horizontal", 3))
sketch7.addConstraint(Sketcher.Constraint("Vertical", 4))
sketch7.addConstraint(Sketcher.Constraint("Coincident", 0, 3, -1, 1))
sketch7.addConstraint(Sketcher.Constraint("Equal", 0, 1))
sketch7.addConstraint(Sketcher.Constraint("PointOnObject", 0, 2, -1))
sketch7.addConstraint(Sketcher.Constraint("Horizontal", 1, 2, 4, 2))
sketch7.addConstraint(Sketcher.Constraint("Radius", 0, Q("0.26 in")))
sketch7.addConstraint(Sketcher.Constraint("DistanceX", 3, 2, 3, 1, Q("0.145 in")))
sketch7.addConstraint(Sketcher.Constraint("DistanceY", -1, 1, 2, 2, Q("0.3325 in")))
sketch7.setExpression("Constraints[12]", "Params.sketch7_radius")
sketch7.setExpression("Constraints[13]", "Params.sketch7_width")
pocket3 = doc.addObject("PartDesign::Pocket", "Pocket002")
body4.addObject(pocket3)
pocket3.Profile = sketch7
pocket3.Type = "ThroughAll"
body5 = doc.addObject("PartDesign::Body", "Body004")

sketch8 = doc.addObject("Sketcher::SketchObject", "Sketch007")
body5.addObject(sketch8)
sketch8.AttachmentSupport = (doc.getObject("XZ_Plane004"), [""])
sketch8.MapMode = "FlatFace"
sketch8.addGeometry(Part.ArcOfCircle(Part.Circle(Vector(-105.435826, 11.1125, 0), Vector(0, 0, 1), 1.5875), math.radians(-162.847118), math.radians(-17.152882)), False)
sketch8.addGeometry(Part.LineSegment(Vector(-106.952716, 10.644311, 0), Vector(-107.587206, 12.7, 0)), False)
sketch8.addGeometry(Part.LineSegment(Vector(-107.587206, 12.7, 0), Vector(-108.222206, 12.7, 0)), False)
sketch8.addGeometry(Part.LineSegment(Vector(-108.222206, 12.7, 0), Vector(-108.222206, 0, 0)), False)
sketch8.addGeometry(Part.LineSegment(Vector(-108.222206, 0, 0), Vector(-92.489446, 0, 0)), False)
sketch8.addGeometry(Part.LineSegment(Vector(-92.489446, 0, 0), Vector(-92.489446, 12.7, 0)), False)
sketch8.addGeometry(Part.LineSegment(Vector(-92.489446, 12.7, 0), Vector(-93.124446, 12.7, 0)), False)
sketch8.addGeometry(Part.LineSegment(Vector(-93.124446, 12.7, 0), Vector(-93.758936, 10.644311, 0)), False)
sketch8.addGeometry(Part.ArcOfCircle(Part.Circle(Vector(-95.275826, 11.1125, 0), Vector(0, 0, 1), 1.5875), math.radians(-162.847118), math.radians(-17.152882)), False)
sketch8.addGeometry(Part.LineSegment(Vector(-96.792716, 10.644311, 0), Vector(-97.427206, 12.7, 0)), False)
sketch8.addGeometry(Part.LineSegment(Vector(-97.427206, 12.7, 0), Vector(-98.204446, 12.7, 0)), False)
sketch8.addGeometry(Part.LineSegment(Vector(-98.204446, 12.7, 0), Vector(-98.838936, 10.644311, 0)), False)
sketch8.addGeometry(Part.ArcOfCircle(Part.Circle(Vector(-100.355826, 11.1125, 0), Vector(0, 0, 1), 1.5875), math.radians(-162.847118), math.radians(-17.152882)), False)
sketch8.addGeometry(Part.LineSegment(Vector(-101.872716, 10.644311, 0), Vector(-102.507206, 12.7, 0)), False)
sketch8.addGeometry(Part.LineSegment(Vector(-102.507206, 12.7, 0), Vector(-103.284446, 12.7, 0)), False)
sketch8.addGeometry(Part.LineSegment(Vector(-103.284446, 12.7, 0), Vector(-103.918936, 10.644311, 0)), False)
sketch8.addConstraint(Sketcher.Constraint("Tangent", 0, 1, 1, 1))
sketch8.addConstraint(Sketcher.Constraint("Coincident", 1, 2, 2, 1))
sketch8.addConstraint(Sketcher.Constraint("Coincident", 2, 2, 3, 1))
sketch8.addConstraint(Sketcher.Constraint("Coincident", 3, 2, 4, 1))
sketch8.addConstraint(Sketcher.Constraint("Coincident", 4, 2, 5, 1))
sketch8.addConstraint(Sketcher.Constraint("Coincident", 5, 2, 6, 1))
sketch8.addConstraint(Sketcher.Constraint("Coincident", 6, 2, 7, 1))
sketch8.addConstraint(Sketcher.Constraint("Tangent", 7, 2, 8, 2))
sketch8.addConstraint(Sketcher.Constraint("Tangent", 8, 1, 9, 1))
sketch8.addConstraint(Sketcher.Constraint("Coincident", 9, 2, 10, 1))
sketch8.addConstraint(Sketcher.Constraint("Coincident", 10, 2, 11, 1))
sketch8.addConstraint(Sketcher.Constraint("Tangent", 11, 2, 12, 2))
sketch8.addConstraint(Sketcher.Constraint("Tangent", 12, 1, 13, 1))
sketch8.addConstraint(Sketcher.Constraint("Coincident", 13, 2, 14, 1))
sketch8.addConstraint(Sketcher.Constraint("Coincident", 14, 2, 15, 1))
sketch8.addConstraint(Sketcher.Constraint("Tangent", 15, 2, 0, 2))
sketch8.addConstraint(Sketcher.Constraint("Horizontal", 2))
sketch8.addConstraint(Sketcher.Constraint("Vertical", 3))
sketch8.addConstraint(Sketcher.Constraint("Horizontal", 4))
sketch8.addConstraint(Sketcher.Constraint("Vertical", 5))
sketch8.addConstraint(Sketcher.Constraint("Horizontal", 6))
sketch8.addConstraint(Sketcher.Constraint("Horizontal", 10))
sketch8.addConstraint(Sketcher.Constraint("Horizontal", 14))
sketch8.addConstraint(Sketcher.Constraint("Equal", 0, 8))
sketch8.addConstraint(Sketcher.Constraint("Equal", 8, 12))
sketch8.addConstraint(Sketcher.Constraint("PointOnObject", 3, 2, -1))
sketch8.addConstraint(Sketcher.Constraint("Parallel", 1, 9))
sketch8.addConstraint(Sketcher.Constraint("Parallel", 7, 11))
sketch8.addConstraint(Sketcher.Constraint("Parallel", 9, 13))
sketch8.addConstraint(Sketcher.Constraint("Parallel", 11, 15))
sketch8.addConstraint(Sketcher.Constraint("Horizontal", 0, 3, 8, 3))
sketch8.addConstraint(Sketcher.Constraint("Horizontal", 8, 3, 12, 3))
sketch8.addConstraint(Sketcher.Constraint("Horizontal", 2, 2, 5, 2))
sketch8.addConstraint(Sketcher.Constraint("Horizontal", 0, 1, 7, 2))
sketch8.addConstraint(Sketcher.Constraint("Horizontal", 6, 2, 9, 2))
sketch8.addConstraint(Sketcher.Constraint("Horizontal", 10, 2, 13, 2))
sketch8.addConstraint(Sketcher.Constraint("Equal", 2, 6))
sketch8.addConstraint(Sketcher.Constraint("Equal", 10, 14))
sketch8.addConstraint(Sketcher.Constraint("DistanceY", 3, 2, 3, 1, Q("0.5 in")))
sketch8.addConstraint(Sketcher.Constraint("Radius", 0, Q("0.0625 in")))
sketch8.addConstraint(Sketcher.Constraint("DistanceX", 0, 3, 8, 3, Q("0.4 in")))
sketch8.addConstraint(Sketcher.Constraint("DistanceX", 2, 2, 2, 1, Q("0.025 in")))
sketch8.addConstraint(Sketcher.Constraint("DistanceX", 4, 1, 4, 2, Q("0.6194 in")))
sketch8.addConstraint(Sketcher.Constraint("DistanceY", -1, 1, 0, 3, Q("0.4375 in")))
sketch8.addConstraint(Sketcher.Constraint("DistanceX", 0, 3, -1, 1, Q("105.435826 mm")))
sketch8.setExpression("Constraints[38]", "Params.sketch8_height")
sketch8.setExpression("Constraints[39]", "Params.sketch8_radius")
sketch8.setExpression("Constraints[41]", "Params.sketch8_width")
revolution4 = doc.addObject("PartDesign::Revolution", "Revolution003")
body5.addObject(revolution4)
revolution4.Profile = sketch8
revolution4.ReferenceAxis = (sketch8, ["H_Axis"])
revolution4.setExpression("Angle", "Params.revolution4_angle")

sketch9 = doc.addObject("Sketcher::SketchObject", "Sketch008")
body5.addObject(sketch9)
sketch9.AttachmentSupport = (doc.getObject("YZ_Plane004"), [""])
sketch9.MapMode = "FlatFace"
sketch9.AttachmentOffset = App.Placement(Vector(0, 0, -92.489446), App.Rotation())
sketch9.addGeometry(Part.LineSegment(Vector(2.896278, 5.0165, 0), Vector(-2.896278, 5.0165, 0)), False)
sketch9.addGeometry(Part.LineSegment(Vector(-2.896278, 5.0165, 0), Vector(-5.792555, 0, 0)), False)
sketch9.addGeometry(Part.LineSegment(Vector(-5.792555, 0, 0), Vector(-2.896278, -5.0165, 0)), False)
sketch9.addGeometry(Part.LineSegment(Vector(-2.896278, -5.0165, 0), Vector(2.896278, -5.0165, 0)), False)
sketch9.addGeometry(Part.LineSegment(Vector(2.896278, -5.0165, 0), Vector(5.792555, 0, 0)), False)
sketch9.addGeometry(Part.LineSegment(Vector(5.792555, 0, 0), Vector(2.896278, 5.0165, 0)), False)
sketch9.addConstraint(Sketcher.Constraint("Coincident", 0, 2, 1, 1))
sketch9.addConstraint(Sketcher.Constraint("Coincident", 1, 2, 2, 1))
sketch9.addConstraint(Sketcher.Constraint("Coincident", 2, 2, 3, 1))
sketch9.addConstraint(Sketcher.Constraint("Coincident", 3, 2, 4, 1))
sketch9.addConstraint(Sketcher.Constraint("Coincident", 4, 2, 5, 1))
sketch9.addConstraint(Sketcher.Constraint("Coincident", 5, 2, 0, 1))
sketch9.addConstraint(Sketcher.Constraint("Horizontal", 0))
sketch9.addConstraint(Sketcher.Constraint("Horizontal", 3))
sketch9.addConstraint(Sketcher.Constraint("Symmetric", 0, 2, 3, 2, -1, 1))
sketch9.addConstraint(Sketcher.Constraint("Symmetric", 1, 2, 4, 2, -1, 1))
sketch9.addConstraint(Sketcher.Constraint("PointOnObject", 1, 2, -1))
sketch9.addConstraint(Sketcher.Constraint("Parallel", 2, 5))
sketch9.addConstraint(Sketcher.Constraint("Vertical", 0, 2, 2, 2))
sketch9.addConstraint(Sketcher.Constraint("Angle", 1, Q("-120 deg")))
sketch9.addConstraint(Sketcher.Constraint("DistanceY", 2, 2, 0, 2, Q("0.395 in")))
sketch9.addConstraint(Sketcher.Constraint("DistanceX", 0, 2, 0, 1, Q("5.792555 mm")))
pocket4 = doc.addObject("PartDesign::Pocket", "Pocket003")
body5.addObject(pocket4)
pocket4.Profile = sketch9
pocket4.Type = "ThroughAll"
body6 = doc.addObject("PartDesign::Body", "Body005")

sketch10 = doc.addObject("Sketcher::SketchObject", "Sketch009")
body6.addObject(sketch10)
sketch10.AttachmentSupport = (doc.getObject("XZ_Plane005"), [""])
sketch10.MapMode = "FlatFace"
sketch10.addGeometry(Part.ArcOfCircle(Part.Circle(Vector(-145.63039, 15.875, 0), Vector(0, 0, 1), 1.5875), math.radians(-162.847118), math.radians(-17.152882)), False)
sketch10.addGeometry(Part.LineSegment(Vector(-147.14728, 15.406811, 0), Vector(-147.78177, 17.4625, 0)), False)
sketch10.addGeometry(Part.LineSegment(Vector(-147.78177, 17.4625, 0), Vector(-148.41677, 17.4625, 0)), False)
sketch10.addGeometry(Part.LineSegment(Vector(-148.41677, 17.4625, 0), Vector(-148.41677, 0, 0)), False)
sketch10.addGeometry(Part.LineSegment(Vector(-148.41677, 0, 0), Vector(-132.68401, 0, 0)), False)
sketch10.addGeometry(Part.LineSegment(Vector(-132.68401, 0, 0), Vector(-132.68401, 17.4625, 0)), False)
sketch10.addGeometry(Part.LineSegment(Vector(-132.68401, 17.4625, 0), Vector(-133.31901, 17.4625, 0)), False)
sketch10.addGeometry(Part.LineSegment(Vector(-133.31901, 17.4625, 0), Vector(-133.9535, 15.406811, 0)), False)
sketch10.addGeometry(Part.ArcOfCircle(Part.Circle(Vector(-135.47039, 15.875, 0), Vector(0, 0, 1), 1.5875), math.radians(-162.847118), math.radians(-17.152882)), False)
sketch10.addGeometry(Part.LineSegment(Vector(-136.98728, 15.406811, 0), Vector(-137.62177, 17.4625, 0)), False)
sketch10.addGeometry(Part.LineSegment(Vector(-137.62177, 17.4625, 0), Vector(-138.39901, 17.4625, 0)), False)
sketch10.addGeometry(Part.LineSegment(Vector(-138.39901, 17.4625, 0), Vector(-139.0335, 15.406811, 0)), False)
sketch10.addGeometry(Part.ArcOfCircle(Part.Circle(Vector(-140.55039, 15.875, 0), Vector(0, 0, 1), 1.5875), math.radians(-162.847118), math.radians(-17.152882)), False)
sketch10.addGeometry(Part.LineSegment(Vector(-142.06728, 15.406811, 0), Vector(-142.70177, 17.4625, 0)), False)
sketch10.addGeometry(Part.LineSegment(Vector(-142.70177, 17.4625, 0), Vector(-143.47901, 17.4625, 0)), False)
sketch10.addGeometry(Part.LineSegment(Vector(-143.47901, 17.4625, 0), Vector(-144.1135, 15.406811, 0)), False)
sketch10.addConstraint(Sketcher.Constraint("Tangent", 0, 1, 1, 1))
sketch10.addConstraint(Sketcher.Constraint("Coincident", 1, 2, 2, 1))
sketch10.addConstraint(Sketcher.Constraint("Coincident", 2, 2, 3, 1))
sketch10.addConstraint(Sketcher.Constraint("Coincident", 3, 2, 4, 1))
sketch10.addConstraint(Sketcher.Constraint("Coincident", 4, 2, 5, 1))
sketch10.addConstraint(Sketcher.Constraint("Coincident", 5, 2, 6, 1))
sketch10.addConstraint(Sketcher.Constraint("Coincident", 6, 2, 7, 1))
sketch10.addConstraint(Sketcher.Constraint("Tangent", 7, 2, 8, 2))
sketch10.addConstraint(Sketcher.Constraint("Tangent", 8, 1, 9, 1))
sketch10.addConstraint(Sketcher.Constraint("Coincident", 9, 2, 10, 1))
sketch10.addConstraint(Sketcher.Constraint("Coincident", 10, 2, 11, 1))
sketch10.addConstraint(Sketcher.Constraint("Tangent", 11, 2, 12, 2))
sketch10.addConstraint(Sketcher.Constraint("Tangent", 12, 1, 13, 1))
sketch10.addConstraint(Sketcher.Constraint("Coincident", 13, 2, 14, 1))
sketch10.addConstraint(Sketcher.Constraint("Coincident", 14, 2, 15, 1))
sketch10.addConstraint(Sketcher.Constraint("Tangent", 15, 2, 0, 2))
sketch10.addConstraint(Sketcher.Constraint("Horizontal", 2))
sketch10.addConstraint(Sketcher.Constraint("Vertical", 3))
sketch10.addConstraint(Sketcher.Constraint("Horizontal", 4))
sketch10.addConstraint(Sketcher.Constraint("Vertical", 5))
sketch10.addConstraint(Sketcher.Constraint("Horizontal", 6))
sketch10.addConstraint(Sketcher.Constraint("Horizontal", 10))
sketch10.addConstraint(Sketcher.Constraint("Horizontal", 14))
sketch10.addConstraint(Sketcher.Constraint("Equal", 0, 8))
sketch10.addConstraint(Sketcher.Constraint("Equal", 8, 12))
sketch10.addConstraint(Sketcher.Constraint("PointOnObject", 3, 2, -1))
sketch10.addConstraint(Sketcher.Constraint("Parallel", 1, 9))
sketch10.addConstraint(Sketcher.Constraint("Parallel", 7, 11))
sketch10.addConstraint(Sketcher.Constraint("Parallel", 9, 13))
sketch10.addConstraint(Sketcher.Constraint("Parallel", 11, 15))
sketch10.addConstraint(Sketcher.Constraint("Horizontal", 0, 3, 8, 3))
sketch10.addConstraint(Sketcher.Constraint("Horizontal", 8, 3, 12, 3))
sketch10.addConstraint(Sketcher.Constraint("Horizontal", 2, 2, 5, 2))
sketch10.addConstraint(Sketcher.Constraint("Horizontal", 0, 1, 7, 2))
sketch10.addConstraint(Sketcher.Constraint("Horizontal", 6, 2, 9, 2))
sketch10.addConstraint(Sketcher.Constraint("Horizontal", 10, 2, 13, 2))
sketch10.addConstraint(Sketcher.Constraint("Equal", 2, 6))
sketch10.addConstraint(Sketcher.Constraint("Equal", 10, 14))
sketch10.addConstraint(Sketcher.Constraint("Radius", 0, Q("0.0625 in")))
sketch10.addConstraint(Sketcher.Constraint("DistanceX", 0, 3, 8, 3, Q("0.4 in")))
sketch10.addConstraint(Sketcher.Constraint("DistanceX", 2, 2, 2, 1, Q("0.025 in")))
sketch10.addConstraint(Sketcher.Constraint("DistanceY", 3, 2, 3, 1, Q("0.6875 in")))
sketch10.addConstraint(Sketcher.Constraint("DistanceX", 4, 1, 4, 2, Q("0.6194 in")))
sketch10.addConstraint(Sketcher.Constraint("DistanceY", -1, 1, 0, 3, Q("0.625 in")))
sketch10.addConstraint(Sketcher.Constraint("DistanceX", 0, 1, -1, 1, Q("5.7932 in")))
sketch10.setExpression("Constraints[38]", "Params.sketch10_radius")
sketch10.setExpression("Constraints[40]", "Params.sketch10_width")
sketch10.setExpression("Constraints[41]", "Params.sketch10_height")
revolution5 = doc.addObject("PartDesign::Revolution", "Revolution004")
body6.addObject(revolution5)
revolution5.Profile = sketch10
revolution5.ReferenceAxis = (sketch10, ["H_Axis"])
revolution5.setExpression("Angle", "Params.revolution5_angle")

sketch11 = doc.addObject("Sketcher::SketchObject", "Sketch010")
body6.addObject(sketch11)
sketch11.AttachmentSupport = (doc.getObject("YZ_Plane005"), [""])
sketch11.MapMode = "FlatFace"
sketch11.AttachmentOffset = App.Placement(Vector(0, 0, -132.68401), App.Rotation())
sketch11.addGeometry(Part.ArcOfCircle(Part.Circle(Vector(0, 0, 0), Vector(0, 0, 1), 6.604), math.radians(103.909242), math.radians(360)), False)
sketch11.addGeometry(Part.ArcOfCircle(Part.Circle(Vector(0, 0, 0), Vector(0, 0, 1), 6.604), math.radians(0), math.radians(76.090758)), False)
sketch11.addGeometry(Part.LineSegment(Vector(1.5875, 6.410356, 0), Vector(1.5875, 5.0165, 0)), False)
sketch11.addGeometry(Part.LineSegment(Vector(1.5875, 5.0165, 0), Vector(-1.5875, 5.0165, 0)), False)
sketch11.addGeometry(Part.LineSegment(Vector(-1.5875, 5.0165, 0), Vector(-1.5875, 6.410356, 0)), False)
sketch11.addConstraint(Sketcher.Constraint("Tangent", 0, 2, 1, 1))
sketch11.addConstraint(Sketcher.Constraint("Coincident", 1, 2, 2, 1))
sketch11.addConstraint(Sketcher.Constraint("Coincident", 2, 2, 3, 1))
sketch11.addConstraint(Sketcher.Constraint("Coincident", 3, 2, 4, 1))
sketch11.addConstraint(Sketcher.Constraint("Coincident", 4, 2, 0, 1))
sketch11.addConstraint(Sketcher.Constraint("Vertical", 2))
sketch11.addConstraint(Sketcher.Constraint("Horizontal", 3))
sketch11.addConstraint(Sketcher.Constraint("Vertical", 4))
sketch11.addConstraint(Sketcher.Constraint("Coincident", 0, 3, -1, 1))
sketch11.addConstraint(Sketcher.Constraint("Equal", 0, 1))
sketch11.addConstraint(Sketcher.Constraint("PointOnObject", 0, 2, -1))
sketch11.addConstraint(Sketcher.Constraint("Horizontal", 1, 2, 4, 2))
sketch11.addConstraint(Sketcher.Constraint("Radius", 0, Q("0.26 in")))
sketch11.addConstraint(Sketcher.Constraint("DistanceX", 3, 2, 3, 1, Q("0.125 in")))
sketch11.addConstraint(Sketcher.Constraint("DistanceY", -1, 1, 2, 2, Q("0.1975 in")))
sketch11.setExpression("Constraints[12]", "Params.sketch11_radius")
sketch11.setExpression("Constraints[13]", "Params.sketch11_width")
pocket5 = doc.addObject("PartDesign::Pocket", "Pocket004")
body6.addObject(pocket5)
pocket5.Profile = sketch11
pocket5.Type = "ThroughAll"

doc.recompute()
